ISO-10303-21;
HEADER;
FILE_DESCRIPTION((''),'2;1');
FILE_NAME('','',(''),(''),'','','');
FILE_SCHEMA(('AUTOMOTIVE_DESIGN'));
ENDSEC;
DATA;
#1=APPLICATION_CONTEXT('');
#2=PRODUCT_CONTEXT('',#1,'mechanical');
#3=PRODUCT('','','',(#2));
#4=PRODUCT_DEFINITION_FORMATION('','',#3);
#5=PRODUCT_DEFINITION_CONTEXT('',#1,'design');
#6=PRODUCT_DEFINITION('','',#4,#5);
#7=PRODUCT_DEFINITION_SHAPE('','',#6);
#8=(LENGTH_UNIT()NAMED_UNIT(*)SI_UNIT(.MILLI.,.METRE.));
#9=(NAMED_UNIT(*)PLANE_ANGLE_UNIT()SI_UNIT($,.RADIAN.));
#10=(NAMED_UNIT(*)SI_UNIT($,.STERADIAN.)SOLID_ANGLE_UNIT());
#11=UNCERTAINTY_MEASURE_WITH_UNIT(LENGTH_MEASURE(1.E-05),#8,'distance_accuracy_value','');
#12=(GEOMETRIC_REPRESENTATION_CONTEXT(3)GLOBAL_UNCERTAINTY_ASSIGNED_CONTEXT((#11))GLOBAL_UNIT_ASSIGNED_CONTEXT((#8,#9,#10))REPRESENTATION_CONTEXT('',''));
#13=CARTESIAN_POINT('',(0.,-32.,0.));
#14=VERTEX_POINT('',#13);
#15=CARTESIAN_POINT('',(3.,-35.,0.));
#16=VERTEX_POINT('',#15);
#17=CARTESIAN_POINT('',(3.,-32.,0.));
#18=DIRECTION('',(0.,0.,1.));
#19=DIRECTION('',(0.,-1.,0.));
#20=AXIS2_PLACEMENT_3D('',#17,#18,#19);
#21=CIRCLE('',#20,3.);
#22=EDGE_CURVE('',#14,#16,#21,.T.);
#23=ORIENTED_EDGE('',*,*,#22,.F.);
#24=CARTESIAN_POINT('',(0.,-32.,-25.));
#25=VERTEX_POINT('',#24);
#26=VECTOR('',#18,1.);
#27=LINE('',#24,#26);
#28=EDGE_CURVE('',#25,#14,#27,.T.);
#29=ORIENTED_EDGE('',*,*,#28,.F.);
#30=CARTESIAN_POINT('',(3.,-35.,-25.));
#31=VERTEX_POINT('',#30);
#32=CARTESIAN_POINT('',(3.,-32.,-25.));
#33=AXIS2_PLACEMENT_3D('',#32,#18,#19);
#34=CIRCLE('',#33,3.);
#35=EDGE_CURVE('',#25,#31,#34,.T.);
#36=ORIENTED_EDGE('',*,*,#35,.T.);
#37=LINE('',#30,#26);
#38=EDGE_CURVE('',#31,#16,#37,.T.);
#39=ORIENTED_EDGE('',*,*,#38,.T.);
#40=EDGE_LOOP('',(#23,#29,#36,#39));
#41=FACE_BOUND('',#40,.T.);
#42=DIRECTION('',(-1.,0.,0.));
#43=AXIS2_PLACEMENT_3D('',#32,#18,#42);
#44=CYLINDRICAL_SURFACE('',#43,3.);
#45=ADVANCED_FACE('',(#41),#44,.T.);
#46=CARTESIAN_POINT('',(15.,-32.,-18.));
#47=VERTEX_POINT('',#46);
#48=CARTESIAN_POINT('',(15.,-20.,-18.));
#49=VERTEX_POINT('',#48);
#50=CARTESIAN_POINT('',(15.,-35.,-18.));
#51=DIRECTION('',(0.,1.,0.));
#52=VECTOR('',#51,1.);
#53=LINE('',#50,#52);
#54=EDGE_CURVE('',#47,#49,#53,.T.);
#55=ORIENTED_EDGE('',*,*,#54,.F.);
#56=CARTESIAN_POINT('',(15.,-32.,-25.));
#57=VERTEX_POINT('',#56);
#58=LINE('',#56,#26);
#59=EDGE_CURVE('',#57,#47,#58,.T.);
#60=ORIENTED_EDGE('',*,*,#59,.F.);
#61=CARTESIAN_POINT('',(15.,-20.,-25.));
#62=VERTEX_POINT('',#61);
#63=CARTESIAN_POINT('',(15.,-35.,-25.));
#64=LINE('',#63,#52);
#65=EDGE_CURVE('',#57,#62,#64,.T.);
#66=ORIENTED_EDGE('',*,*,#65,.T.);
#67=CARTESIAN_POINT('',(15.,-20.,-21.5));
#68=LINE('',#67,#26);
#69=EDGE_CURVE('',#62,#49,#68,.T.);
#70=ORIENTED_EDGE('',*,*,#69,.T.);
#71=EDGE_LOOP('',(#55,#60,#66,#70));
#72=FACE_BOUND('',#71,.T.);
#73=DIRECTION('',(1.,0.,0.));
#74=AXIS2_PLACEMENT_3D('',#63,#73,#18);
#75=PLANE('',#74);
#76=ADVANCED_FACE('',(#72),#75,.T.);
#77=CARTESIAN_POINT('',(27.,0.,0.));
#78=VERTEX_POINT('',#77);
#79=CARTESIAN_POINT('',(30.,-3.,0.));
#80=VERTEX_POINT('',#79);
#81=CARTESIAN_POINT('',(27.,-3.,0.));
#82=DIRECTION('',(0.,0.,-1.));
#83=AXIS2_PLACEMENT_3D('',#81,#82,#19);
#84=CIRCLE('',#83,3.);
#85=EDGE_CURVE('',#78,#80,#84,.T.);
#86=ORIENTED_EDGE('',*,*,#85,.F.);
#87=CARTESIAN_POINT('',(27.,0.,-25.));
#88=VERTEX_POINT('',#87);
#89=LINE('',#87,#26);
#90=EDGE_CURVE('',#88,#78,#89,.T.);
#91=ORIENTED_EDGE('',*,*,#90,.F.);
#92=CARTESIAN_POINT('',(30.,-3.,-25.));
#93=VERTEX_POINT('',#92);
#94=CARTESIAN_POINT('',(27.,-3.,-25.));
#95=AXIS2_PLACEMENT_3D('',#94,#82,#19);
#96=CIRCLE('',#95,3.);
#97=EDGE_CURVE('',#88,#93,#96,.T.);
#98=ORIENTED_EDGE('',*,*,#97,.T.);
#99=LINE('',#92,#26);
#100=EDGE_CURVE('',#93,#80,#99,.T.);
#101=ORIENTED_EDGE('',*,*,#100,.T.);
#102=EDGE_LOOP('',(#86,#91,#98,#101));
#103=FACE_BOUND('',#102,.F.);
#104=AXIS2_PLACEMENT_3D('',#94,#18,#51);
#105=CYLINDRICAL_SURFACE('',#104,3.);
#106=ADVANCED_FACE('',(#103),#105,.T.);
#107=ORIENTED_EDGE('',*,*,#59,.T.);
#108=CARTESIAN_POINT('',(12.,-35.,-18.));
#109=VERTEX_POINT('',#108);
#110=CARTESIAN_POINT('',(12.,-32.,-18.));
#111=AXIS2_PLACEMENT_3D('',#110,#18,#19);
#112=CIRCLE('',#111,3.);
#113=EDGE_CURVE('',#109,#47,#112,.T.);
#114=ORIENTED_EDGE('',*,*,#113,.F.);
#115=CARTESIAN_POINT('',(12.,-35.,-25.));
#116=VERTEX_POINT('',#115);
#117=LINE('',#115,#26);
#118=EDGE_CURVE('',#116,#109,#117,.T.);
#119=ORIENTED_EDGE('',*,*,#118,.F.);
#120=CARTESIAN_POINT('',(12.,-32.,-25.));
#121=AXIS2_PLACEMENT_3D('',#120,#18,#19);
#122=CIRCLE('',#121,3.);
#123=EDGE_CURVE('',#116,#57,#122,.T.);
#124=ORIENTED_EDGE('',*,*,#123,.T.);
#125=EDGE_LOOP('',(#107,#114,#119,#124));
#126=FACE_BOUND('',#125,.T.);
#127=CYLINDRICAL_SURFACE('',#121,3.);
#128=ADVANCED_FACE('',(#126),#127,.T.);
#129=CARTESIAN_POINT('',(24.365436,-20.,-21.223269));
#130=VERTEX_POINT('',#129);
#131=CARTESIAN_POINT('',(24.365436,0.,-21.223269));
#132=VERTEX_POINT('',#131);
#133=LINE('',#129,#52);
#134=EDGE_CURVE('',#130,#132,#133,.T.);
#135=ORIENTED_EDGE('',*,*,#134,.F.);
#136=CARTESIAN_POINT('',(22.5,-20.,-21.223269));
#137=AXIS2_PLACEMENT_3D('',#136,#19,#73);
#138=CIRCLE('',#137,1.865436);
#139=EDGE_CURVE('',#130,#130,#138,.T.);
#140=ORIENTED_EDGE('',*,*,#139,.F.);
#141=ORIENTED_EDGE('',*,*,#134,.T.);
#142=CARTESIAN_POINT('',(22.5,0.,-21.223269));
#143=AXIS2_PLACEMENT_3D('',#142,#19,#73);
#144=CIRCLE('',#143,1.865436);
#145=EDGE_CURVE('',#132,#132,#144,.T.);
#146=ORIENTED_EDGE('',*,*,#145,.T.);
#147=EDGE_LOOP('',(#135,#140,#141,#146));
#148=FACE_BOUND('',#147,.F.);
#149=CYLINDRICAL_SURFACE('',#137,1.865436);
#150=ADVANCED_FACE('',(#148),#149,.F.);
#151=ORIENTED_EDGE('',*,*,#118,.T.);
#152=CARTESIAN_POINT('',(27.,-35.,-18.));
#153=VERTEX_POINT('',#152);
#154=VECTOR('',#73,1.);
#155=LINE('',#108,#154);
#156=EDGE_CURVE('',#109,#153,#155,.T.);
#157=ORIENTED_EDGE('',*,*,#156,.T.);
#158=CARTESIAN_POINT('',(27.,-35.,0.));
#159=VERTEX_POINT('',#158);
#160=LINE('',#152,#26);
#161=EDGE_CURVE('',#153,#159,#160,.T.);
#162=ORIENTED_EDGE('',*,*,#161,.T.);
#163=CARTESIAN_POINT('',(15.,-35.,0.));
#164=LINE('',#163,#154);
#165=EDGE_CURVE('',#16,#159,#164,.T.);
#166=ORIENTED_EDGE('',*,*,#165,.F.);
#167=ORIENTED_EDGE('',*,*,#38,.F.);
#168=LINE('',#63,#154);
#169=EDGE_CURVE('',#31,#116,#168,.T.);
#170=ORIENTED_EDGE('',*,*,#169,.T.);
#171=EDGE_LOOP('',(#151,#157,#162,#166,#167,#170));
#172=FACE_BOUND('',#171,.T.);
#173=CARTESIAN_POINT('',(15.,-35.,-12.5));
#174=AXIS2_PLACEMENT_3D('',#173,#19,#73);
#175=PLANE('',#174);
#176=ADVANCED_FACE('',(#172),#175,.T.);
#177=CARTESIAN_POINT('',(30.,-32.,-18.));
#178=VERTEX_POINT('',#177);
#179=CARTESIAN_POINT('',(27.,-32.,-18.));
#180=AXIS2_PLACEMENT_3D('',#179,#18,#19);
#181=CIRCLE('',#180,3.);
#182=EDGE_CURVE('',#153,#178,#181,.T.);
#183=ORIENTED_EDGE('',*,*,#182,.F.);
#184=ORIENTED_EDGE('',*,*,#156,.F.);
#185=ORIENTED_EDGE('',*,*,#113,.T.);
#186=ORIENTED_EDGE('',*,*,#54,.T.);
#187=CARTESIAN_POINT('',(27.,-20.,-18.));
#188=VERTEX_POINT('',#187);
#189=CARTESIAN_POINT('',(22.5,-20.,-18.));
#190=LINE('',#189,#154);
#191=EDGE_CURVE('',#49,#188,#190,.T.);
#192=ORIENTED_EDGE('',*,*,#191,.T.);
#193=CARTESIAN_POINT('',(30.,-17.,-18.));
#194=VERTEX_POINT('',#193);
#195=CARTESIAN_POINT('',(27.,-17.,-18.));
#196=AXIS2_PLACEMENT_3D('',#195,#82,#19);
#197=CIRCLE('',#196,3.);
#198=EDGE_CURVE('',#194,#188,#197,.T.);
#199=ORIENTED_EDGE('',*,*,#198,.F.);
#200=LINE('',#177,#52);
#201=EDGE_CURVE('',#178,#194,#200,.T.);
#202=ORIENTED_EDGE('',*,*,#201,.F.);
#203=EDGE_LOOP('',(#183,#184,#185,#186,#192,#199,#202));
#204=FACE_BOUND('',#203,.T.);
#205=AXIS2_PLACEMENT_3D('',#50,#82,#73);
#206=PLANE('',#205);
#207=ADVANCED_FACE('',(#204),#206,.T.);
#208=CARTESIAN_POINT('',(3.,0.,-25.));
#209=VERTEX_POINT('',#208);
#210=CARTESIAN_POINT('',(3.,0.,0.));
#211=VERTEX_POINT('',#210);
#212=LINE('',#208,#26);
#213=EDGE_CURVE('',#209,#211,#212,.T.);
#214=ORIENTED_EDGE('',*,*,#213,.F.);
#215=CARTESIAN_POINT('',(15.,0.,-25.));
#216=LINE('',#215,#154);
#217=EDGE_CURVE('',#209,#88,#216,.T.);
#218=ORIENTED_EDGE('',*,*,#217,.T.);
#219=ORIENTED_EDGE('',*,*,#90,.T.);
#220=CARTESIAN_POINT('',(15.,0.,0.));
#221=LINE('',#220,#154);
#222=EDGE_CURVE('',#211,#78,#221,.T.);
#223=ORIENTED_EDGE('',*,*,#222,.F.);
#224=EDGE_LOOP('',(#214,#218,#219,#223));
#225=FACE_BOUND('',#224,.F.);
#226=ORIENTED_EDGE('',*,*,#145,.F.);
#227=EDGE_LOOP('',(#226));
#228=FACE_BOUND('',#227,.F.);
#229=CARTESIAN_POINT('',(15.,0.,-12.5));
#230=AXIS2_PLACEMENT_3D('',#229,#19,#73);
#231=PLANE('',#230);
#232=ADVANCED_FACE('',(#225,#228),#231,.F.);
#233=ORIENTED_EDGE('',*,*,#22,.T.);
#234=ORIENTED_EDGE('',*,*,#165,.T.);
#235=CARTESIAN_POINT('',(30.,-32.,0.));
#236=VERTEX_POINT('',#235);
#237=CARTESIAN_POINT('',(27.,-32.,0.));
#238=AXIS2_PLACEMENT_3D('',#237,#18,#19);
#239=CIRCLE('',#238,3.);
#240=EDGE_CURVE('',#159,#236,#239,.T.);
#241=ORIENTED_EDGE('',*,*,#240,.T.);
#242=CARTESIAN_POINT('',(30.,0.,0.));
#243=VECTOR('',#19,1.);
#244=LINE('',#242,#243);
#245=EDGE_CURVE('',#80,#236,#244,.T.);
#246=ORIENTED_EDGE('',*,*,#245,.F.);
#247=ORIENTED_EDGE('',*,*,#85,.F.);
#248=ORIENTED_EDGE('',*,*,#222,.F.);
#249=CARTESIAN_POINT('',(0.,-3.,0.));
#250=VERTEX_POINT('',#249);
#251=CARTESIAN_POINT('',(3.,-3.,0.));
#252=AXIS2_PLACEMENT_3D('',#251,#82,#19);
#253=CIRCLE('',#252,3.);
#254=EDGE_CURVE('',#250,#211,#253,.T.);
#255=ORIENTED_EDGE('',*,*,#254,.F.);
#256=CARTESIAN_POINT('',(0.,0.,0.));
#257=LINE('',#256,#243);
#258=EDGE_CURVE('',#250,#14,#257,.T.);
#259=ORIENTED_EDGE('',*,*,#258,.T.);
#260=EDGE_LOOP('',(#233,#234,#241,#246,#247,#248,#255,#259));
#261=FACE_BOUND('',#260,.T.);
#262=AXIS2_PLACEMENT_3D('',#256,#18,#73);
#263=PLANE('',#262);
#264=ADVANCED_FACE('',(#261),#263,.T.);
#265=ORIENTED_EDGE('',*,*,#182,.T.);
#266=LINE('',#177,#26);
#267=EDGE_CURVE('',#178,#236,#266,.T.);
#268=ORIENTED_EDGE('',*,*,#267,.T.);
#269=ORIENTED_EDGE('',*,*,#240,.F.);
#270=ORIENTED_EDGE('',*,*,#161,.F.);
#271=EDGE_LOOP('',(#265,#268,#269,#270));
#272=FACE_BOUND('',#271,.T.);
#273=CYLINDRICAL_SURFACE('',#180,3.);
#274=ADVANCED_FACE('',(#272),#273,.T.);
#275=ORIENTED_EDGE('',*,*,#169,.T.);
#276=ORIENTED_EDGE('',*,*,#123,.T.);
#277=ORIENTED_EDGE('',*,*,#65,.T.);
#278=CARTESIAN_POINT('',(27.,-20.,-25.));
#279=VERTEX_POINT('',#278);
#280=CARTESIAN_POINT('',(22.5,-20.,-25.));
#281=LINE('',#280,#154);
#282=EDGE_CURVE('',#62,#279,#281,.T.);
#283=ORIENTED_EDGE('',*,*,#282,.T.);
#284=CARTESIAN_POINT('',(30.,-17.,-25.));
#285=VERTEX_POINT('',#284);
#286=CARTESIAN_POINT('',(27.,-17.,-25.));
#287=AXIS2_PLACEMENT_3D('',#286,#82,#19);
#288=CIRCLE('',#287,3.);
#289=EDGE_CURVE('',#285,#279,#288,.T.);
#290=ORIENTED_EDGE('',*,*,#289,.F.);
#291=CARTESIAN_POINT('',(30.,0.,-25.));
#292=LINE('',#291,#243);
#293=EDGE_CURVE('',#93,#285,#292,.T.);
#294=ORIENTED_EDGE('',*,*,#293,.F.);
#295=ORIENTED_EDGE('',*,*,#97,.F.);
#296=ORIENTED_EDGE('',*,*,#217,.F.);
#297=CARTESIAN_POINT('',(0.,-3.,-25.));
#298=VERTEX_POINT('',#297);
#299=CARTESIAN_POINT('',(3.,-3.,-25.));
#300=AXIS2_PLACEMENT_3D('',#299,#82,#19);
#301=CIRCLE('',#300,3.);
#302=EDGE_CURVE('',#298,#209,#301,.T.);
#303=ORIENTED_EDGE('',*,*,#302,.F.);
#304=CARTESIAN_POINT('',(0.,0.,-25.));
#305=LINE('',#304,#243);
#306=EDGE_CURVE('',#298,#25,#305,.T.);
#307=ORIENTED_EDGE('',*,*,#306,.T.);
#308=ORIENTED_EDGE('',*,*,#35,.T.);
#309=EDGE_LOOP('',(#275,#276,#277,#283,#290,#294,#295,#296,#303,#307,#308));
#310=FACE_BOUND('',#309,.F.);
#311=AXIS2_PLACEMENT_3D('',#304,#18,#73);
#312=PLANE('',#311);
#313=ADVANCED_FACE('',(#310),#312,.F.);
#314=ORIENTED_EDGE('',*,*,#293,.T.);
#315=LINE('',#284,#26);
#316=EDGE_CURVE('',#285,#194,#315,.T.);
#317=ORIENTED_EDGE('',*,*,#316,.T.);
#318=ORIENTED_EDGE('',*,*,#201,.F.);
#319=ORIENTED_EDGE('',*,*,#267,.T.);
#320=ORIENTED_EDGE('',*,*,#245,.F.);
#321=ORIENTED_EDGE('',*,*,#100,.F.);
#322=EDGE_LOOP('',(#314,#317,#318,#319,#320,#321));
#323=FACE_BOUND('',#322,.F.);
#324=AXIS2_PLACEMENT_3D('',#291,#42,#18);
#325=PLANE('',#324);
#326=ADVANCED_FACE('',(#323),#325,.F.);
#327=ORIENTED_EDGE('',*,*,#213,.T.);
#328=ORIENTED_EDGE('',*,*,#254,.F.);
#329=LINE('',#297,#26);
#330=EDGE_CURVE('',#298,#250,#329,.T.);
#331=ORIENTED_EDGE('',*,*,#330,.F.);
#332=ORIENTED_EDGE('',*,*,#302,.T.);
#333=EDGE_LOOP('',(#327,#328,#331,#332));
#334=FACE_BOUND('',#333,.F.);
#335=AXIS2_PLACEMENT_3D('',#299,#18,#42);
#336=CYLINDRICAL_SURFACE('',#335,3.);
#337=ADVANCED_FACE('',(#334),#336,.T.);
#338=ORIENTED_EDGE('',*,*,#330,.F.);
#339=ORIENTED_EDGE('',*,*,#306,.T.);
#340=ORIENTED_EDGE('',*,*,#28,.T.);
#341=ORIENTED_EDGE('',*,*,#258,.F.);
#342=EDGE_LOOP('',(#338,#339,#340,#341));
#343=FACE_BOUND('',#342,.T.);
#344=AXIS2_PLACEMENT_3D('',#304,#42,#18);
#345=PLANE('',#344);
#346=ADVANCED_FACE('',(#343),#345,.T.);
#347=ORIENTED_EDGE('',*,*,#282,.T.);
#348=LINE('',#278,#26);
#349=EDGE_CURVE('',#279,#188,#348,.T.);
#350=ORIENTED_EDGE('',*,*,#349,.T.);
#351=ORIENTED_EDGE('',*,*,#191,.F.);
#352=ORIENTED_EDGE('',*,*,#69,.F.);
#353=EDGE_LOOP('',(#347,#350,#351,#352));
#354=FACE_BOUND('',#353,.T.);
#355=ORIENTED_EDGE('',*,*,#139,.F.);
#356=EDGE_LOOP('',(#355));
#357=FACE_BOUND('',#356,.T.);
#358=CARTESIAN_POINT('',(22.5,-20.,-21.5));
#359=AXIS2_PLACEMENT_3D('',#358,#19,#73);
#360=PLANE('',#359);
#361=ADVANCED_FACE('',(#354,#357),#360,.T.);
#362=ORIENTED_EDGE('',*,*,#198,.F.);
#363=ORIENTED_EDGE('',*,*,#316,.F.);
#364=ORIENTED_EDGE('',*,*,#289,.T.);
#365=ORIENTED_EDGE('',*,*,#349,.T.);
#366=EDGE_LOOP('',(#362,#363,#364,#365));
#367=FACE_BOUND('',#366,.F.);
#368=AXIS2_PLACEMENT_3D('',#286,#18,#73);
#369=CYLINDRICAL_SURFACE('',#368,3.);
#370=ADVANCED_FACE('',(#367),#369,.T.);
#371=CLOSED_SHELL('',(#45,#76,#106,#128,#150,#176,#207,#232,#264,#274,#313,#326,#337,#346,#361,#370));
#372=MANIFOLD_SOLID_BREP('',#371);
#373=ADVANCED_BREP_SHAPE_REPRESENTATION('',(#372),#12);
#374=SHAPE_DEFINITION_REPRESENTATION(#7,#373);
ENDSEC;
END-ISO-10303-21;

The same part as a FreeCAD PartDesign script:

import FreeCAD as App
import Part
import Sketcher
from FreeCAD import Vector
Q = App.Units.Quantity


def edges_at(feature, points):
    """Names of the edges that pass closest to the given points."""
    edges = feature.Shape.Edges
    near = lambda p: min(range(len(edges)), key=lambda i: edges[i].distToShape(Part.Vertex(*p))[0])
    return sorted({f"Edge{near(p) + 1}" for p in points})

doc = App.newDocument("Part")
body = doc.addObject("PartDesign::Body", "Body")

# Sketch on XZ plane
sketch1 = body.newObject("Sketcher::SketchObject", "Sketch")
sketch1.AttachmentSupport = (doc.getObject("XZ_Plane"), [""])
sketch1.MapMode = "FlatFace"
sketch1.addGeometry([
    Part.LineSegment(Vector(0, 0, 0), Vector(0, -25, 0)),
    Part.LineSegment(Vector(0, -25, 0), Vector(30, -25, 0)),
    Part.LineSegment(Vector(30, -25, 0), Vector(30, 0, 0)),
    Part.LineSegment(Vector(30, 0, 0), Vector(0, 0, 0)),
], False)
sketch1.addConstraint([
    Sketcher.Constraint("Coincident", 0, 2, 1, 1),
    Sketcher.Constraint("Coincident", 1, 2, 2, 1),
    Sketcher.Constraint("Coincident", 2, 2, 3, 1),
    Sketcher.Constraint("Coincident", 3, 2, 0, 1),
    Sketcher.Constraint("Vertical", 0),
    Sketcher.Constraint("Horizontal", 1),
    Sketcher.Constraint("Vertical", 2),
    Sketcher.Constraint("Horizontal", 3),
    Sketcher.Constraint("Coincident", 3, 2, -1, 1),
    Sketcher.Constraint("DistanceX", 1, 1, 1, 2, Q("30 mm")),
    Sketcher.Constraint("DistanceY", 0, 2, 0, 1, Q("25 mm")),
])
pad1 = body.newObject("PartDesign::Pad", "Pad")
pad1.Profile = sketch1
pad1.Length = 35

# Sketch on XZ plane
sketch2 = body.newObject("Sketcher::SketchObject", "Sketch001")
sketch2.AttachmentSupport = (doc.getObject("XZ_Plane"), [""])
sketch2.MapMode = "FlatFace"
sketch2.AttachmentOffset = App.Placement(Vector(0, 0, 35), App.Rotation())
sketch2.addGeometry([
    Part.LineSegment(Vector(15, -18, 0), Vector(15, -25, 0)),
    Part.LineSegment(Vector(15, -25, 0), Vector(30, -25, 0)),
    Part.LineSegment(Vector(30, -25, 0), Vector(30, -18, 0)),
    Part.LineSegment(Vector(30, -18, 0), Vector(15, -18, 0)),
], False)
sketch2.addConstraint([
    Sketcher.Constraint("Coincident", 0, 2, 1, 1),
    Sketcher.Constraint("Coincident", 1, 2, 2, 1),
    Sketcher.Constraint("Coincident", 2, 2, 3, 1),
    Sketcher.Constraint("Coincident", 3, 2, 0, 1),
    Sketcher.Constraint("Vertical", 0),
    Sketcher.Constraint("Horizontal", 1),
    Sketcher.Constraint("Vertical", 2),
    Sketcher.Constraint("Horizontal", 3),
    Sketcher.Constraint("DistanceX", 1, 1, 1, 2, Q("15 mm")),
    Sketcher.Constraint("DistanceY", 0, 2, 0, 1, Q("7 mm")),
    Sketcher.Constraint("DistanceX", -1, 1, 0, 2, Q("15 mm")),
    Sketcher.Constraint("DistanceY", 0, 2, -1, 1, Q("25 mm")),
])
pocket1 = body.newObject("PartDesign::Pocket", "Pocket")
pocket1.Profile = sketch2
pocket1.Length = 15

# Sketch on XZ plane
sketch3 = body.newObject("Sketcher::SketchObject", "Sketch002")
sketch3.AttachmentSupport = (doc.getObject("XZ_Plane"), [""])
sketch3.MapMode = "FlatFace"
sketch3.AttachmentOffset = App.Placement(Vector(0, 0, 20), App.Rotation())
sketch3.addGeometry(Part.Circle(Vector(22.5, -21.223269, 0), Vector(0, 0, 1), 1.865436), False)
sketch3.addConstraint([
    Sketcher.Constraint("DistanceX", -1, 1, 0, 3, Q("22.5 mm")),
    Sketcher.Constraint("Diameter", 0, Q("3.730872 mm")),
    Sketcher.Constraint("DistanceY", 0, 3, -1, 1, Q("21.223269 mm")),
])
pocket2 = body.newObject("PartDesign::Pocket", "Pocket001")
pocket2.Profile = sketch3
pocket2.Type = "ThroughAll"
doc.recompute()

fillet = body.newObject("PartDesign::Fillet", "Fillet")
fillet.Base = (pocket2, edges_at(pocket2, [
    (0, -35, -12.5),
    (15, -35, -21.5),
    (30, 0, -12.5),
    (30, -35, -9),
    (30, -20, -21.5),
    (0, 0, -12.5),
]))
fillet.Radius = 3

doc.recompute()
